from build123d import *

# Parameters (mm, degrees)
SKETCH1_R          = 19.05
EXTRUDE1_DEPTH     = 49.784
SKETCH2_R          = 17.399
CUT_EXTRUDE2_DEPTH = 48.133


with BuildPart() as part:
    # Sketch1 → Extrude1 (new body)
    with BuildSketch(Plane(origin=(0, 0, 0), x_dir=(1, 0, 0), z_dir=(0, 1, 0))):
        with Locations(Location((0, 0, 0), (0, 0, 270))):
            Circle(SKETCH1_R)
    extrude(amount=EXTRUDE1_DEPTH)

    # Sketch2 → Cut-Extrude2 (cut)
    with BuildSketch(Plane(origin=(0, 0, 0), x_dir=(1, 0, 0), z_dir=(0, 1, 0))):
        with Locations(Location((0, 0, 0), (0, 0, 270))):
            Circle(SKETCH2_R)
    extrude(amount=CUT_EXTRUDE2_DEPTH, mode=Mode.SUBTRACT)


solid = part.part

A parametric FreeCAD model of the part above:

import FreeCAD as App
import Part
import Sketcher
Q = App.Units.Quantity

doc = App.newDocument("Part")
body = doc.addObject("PartDesign::Body", "Body")

sketch1 = body.newObject("Sketcher::SketchObject", "Sketch")
sketch1.AttachmentSupport = (doc.getObject("XZ_Plane"), [""])
sketch1.MapMode = "FlatFace"
sketch1.addGeometry(Part.Circle(App.Vector(0, 0, 0), App.Vector(0, 0, 1), 19.05), False)
sketch1.addConstraint(Sketcher.Constraint("Coincident", 0, 3, -1, 1))
sketch1.addConstraint(Sketcher.Constraint("Diameter", 0, Q("1.5 in")))
pad1 = body.newObject("PartDesign::Pad", "Pad")
pad1.Profile = sketch1
pad1.Length = Q("1.96 in")
pad1.Reversed = True

sketch2 = body.newObject("Sketcher::SketchObject", "Sketch001")
sketch2.AttachmentSupport = (doc.getObject("XZ_Plane"), [""])
sketch2.MapMode = "FlatFace"
sketch2.addGeometry(Part.Circle(App.Vector(0, 0, 0), App.Vector(0, 0, 1), 17.399), False)
sketch2.addConstraint(Sketcher.Constraint("Coincident", 0, 3, -1, 1))
sketch2.addConstraint(Sketcher.Constraint("Diameter", 0, Q("1.37 in")))
pocket1 = body.newObject("PartDesign::Pocket", "Pocket")
pocket1.Profile = sketch2
pocket1.Length = Q("1.895 in")

doc.recompute()
